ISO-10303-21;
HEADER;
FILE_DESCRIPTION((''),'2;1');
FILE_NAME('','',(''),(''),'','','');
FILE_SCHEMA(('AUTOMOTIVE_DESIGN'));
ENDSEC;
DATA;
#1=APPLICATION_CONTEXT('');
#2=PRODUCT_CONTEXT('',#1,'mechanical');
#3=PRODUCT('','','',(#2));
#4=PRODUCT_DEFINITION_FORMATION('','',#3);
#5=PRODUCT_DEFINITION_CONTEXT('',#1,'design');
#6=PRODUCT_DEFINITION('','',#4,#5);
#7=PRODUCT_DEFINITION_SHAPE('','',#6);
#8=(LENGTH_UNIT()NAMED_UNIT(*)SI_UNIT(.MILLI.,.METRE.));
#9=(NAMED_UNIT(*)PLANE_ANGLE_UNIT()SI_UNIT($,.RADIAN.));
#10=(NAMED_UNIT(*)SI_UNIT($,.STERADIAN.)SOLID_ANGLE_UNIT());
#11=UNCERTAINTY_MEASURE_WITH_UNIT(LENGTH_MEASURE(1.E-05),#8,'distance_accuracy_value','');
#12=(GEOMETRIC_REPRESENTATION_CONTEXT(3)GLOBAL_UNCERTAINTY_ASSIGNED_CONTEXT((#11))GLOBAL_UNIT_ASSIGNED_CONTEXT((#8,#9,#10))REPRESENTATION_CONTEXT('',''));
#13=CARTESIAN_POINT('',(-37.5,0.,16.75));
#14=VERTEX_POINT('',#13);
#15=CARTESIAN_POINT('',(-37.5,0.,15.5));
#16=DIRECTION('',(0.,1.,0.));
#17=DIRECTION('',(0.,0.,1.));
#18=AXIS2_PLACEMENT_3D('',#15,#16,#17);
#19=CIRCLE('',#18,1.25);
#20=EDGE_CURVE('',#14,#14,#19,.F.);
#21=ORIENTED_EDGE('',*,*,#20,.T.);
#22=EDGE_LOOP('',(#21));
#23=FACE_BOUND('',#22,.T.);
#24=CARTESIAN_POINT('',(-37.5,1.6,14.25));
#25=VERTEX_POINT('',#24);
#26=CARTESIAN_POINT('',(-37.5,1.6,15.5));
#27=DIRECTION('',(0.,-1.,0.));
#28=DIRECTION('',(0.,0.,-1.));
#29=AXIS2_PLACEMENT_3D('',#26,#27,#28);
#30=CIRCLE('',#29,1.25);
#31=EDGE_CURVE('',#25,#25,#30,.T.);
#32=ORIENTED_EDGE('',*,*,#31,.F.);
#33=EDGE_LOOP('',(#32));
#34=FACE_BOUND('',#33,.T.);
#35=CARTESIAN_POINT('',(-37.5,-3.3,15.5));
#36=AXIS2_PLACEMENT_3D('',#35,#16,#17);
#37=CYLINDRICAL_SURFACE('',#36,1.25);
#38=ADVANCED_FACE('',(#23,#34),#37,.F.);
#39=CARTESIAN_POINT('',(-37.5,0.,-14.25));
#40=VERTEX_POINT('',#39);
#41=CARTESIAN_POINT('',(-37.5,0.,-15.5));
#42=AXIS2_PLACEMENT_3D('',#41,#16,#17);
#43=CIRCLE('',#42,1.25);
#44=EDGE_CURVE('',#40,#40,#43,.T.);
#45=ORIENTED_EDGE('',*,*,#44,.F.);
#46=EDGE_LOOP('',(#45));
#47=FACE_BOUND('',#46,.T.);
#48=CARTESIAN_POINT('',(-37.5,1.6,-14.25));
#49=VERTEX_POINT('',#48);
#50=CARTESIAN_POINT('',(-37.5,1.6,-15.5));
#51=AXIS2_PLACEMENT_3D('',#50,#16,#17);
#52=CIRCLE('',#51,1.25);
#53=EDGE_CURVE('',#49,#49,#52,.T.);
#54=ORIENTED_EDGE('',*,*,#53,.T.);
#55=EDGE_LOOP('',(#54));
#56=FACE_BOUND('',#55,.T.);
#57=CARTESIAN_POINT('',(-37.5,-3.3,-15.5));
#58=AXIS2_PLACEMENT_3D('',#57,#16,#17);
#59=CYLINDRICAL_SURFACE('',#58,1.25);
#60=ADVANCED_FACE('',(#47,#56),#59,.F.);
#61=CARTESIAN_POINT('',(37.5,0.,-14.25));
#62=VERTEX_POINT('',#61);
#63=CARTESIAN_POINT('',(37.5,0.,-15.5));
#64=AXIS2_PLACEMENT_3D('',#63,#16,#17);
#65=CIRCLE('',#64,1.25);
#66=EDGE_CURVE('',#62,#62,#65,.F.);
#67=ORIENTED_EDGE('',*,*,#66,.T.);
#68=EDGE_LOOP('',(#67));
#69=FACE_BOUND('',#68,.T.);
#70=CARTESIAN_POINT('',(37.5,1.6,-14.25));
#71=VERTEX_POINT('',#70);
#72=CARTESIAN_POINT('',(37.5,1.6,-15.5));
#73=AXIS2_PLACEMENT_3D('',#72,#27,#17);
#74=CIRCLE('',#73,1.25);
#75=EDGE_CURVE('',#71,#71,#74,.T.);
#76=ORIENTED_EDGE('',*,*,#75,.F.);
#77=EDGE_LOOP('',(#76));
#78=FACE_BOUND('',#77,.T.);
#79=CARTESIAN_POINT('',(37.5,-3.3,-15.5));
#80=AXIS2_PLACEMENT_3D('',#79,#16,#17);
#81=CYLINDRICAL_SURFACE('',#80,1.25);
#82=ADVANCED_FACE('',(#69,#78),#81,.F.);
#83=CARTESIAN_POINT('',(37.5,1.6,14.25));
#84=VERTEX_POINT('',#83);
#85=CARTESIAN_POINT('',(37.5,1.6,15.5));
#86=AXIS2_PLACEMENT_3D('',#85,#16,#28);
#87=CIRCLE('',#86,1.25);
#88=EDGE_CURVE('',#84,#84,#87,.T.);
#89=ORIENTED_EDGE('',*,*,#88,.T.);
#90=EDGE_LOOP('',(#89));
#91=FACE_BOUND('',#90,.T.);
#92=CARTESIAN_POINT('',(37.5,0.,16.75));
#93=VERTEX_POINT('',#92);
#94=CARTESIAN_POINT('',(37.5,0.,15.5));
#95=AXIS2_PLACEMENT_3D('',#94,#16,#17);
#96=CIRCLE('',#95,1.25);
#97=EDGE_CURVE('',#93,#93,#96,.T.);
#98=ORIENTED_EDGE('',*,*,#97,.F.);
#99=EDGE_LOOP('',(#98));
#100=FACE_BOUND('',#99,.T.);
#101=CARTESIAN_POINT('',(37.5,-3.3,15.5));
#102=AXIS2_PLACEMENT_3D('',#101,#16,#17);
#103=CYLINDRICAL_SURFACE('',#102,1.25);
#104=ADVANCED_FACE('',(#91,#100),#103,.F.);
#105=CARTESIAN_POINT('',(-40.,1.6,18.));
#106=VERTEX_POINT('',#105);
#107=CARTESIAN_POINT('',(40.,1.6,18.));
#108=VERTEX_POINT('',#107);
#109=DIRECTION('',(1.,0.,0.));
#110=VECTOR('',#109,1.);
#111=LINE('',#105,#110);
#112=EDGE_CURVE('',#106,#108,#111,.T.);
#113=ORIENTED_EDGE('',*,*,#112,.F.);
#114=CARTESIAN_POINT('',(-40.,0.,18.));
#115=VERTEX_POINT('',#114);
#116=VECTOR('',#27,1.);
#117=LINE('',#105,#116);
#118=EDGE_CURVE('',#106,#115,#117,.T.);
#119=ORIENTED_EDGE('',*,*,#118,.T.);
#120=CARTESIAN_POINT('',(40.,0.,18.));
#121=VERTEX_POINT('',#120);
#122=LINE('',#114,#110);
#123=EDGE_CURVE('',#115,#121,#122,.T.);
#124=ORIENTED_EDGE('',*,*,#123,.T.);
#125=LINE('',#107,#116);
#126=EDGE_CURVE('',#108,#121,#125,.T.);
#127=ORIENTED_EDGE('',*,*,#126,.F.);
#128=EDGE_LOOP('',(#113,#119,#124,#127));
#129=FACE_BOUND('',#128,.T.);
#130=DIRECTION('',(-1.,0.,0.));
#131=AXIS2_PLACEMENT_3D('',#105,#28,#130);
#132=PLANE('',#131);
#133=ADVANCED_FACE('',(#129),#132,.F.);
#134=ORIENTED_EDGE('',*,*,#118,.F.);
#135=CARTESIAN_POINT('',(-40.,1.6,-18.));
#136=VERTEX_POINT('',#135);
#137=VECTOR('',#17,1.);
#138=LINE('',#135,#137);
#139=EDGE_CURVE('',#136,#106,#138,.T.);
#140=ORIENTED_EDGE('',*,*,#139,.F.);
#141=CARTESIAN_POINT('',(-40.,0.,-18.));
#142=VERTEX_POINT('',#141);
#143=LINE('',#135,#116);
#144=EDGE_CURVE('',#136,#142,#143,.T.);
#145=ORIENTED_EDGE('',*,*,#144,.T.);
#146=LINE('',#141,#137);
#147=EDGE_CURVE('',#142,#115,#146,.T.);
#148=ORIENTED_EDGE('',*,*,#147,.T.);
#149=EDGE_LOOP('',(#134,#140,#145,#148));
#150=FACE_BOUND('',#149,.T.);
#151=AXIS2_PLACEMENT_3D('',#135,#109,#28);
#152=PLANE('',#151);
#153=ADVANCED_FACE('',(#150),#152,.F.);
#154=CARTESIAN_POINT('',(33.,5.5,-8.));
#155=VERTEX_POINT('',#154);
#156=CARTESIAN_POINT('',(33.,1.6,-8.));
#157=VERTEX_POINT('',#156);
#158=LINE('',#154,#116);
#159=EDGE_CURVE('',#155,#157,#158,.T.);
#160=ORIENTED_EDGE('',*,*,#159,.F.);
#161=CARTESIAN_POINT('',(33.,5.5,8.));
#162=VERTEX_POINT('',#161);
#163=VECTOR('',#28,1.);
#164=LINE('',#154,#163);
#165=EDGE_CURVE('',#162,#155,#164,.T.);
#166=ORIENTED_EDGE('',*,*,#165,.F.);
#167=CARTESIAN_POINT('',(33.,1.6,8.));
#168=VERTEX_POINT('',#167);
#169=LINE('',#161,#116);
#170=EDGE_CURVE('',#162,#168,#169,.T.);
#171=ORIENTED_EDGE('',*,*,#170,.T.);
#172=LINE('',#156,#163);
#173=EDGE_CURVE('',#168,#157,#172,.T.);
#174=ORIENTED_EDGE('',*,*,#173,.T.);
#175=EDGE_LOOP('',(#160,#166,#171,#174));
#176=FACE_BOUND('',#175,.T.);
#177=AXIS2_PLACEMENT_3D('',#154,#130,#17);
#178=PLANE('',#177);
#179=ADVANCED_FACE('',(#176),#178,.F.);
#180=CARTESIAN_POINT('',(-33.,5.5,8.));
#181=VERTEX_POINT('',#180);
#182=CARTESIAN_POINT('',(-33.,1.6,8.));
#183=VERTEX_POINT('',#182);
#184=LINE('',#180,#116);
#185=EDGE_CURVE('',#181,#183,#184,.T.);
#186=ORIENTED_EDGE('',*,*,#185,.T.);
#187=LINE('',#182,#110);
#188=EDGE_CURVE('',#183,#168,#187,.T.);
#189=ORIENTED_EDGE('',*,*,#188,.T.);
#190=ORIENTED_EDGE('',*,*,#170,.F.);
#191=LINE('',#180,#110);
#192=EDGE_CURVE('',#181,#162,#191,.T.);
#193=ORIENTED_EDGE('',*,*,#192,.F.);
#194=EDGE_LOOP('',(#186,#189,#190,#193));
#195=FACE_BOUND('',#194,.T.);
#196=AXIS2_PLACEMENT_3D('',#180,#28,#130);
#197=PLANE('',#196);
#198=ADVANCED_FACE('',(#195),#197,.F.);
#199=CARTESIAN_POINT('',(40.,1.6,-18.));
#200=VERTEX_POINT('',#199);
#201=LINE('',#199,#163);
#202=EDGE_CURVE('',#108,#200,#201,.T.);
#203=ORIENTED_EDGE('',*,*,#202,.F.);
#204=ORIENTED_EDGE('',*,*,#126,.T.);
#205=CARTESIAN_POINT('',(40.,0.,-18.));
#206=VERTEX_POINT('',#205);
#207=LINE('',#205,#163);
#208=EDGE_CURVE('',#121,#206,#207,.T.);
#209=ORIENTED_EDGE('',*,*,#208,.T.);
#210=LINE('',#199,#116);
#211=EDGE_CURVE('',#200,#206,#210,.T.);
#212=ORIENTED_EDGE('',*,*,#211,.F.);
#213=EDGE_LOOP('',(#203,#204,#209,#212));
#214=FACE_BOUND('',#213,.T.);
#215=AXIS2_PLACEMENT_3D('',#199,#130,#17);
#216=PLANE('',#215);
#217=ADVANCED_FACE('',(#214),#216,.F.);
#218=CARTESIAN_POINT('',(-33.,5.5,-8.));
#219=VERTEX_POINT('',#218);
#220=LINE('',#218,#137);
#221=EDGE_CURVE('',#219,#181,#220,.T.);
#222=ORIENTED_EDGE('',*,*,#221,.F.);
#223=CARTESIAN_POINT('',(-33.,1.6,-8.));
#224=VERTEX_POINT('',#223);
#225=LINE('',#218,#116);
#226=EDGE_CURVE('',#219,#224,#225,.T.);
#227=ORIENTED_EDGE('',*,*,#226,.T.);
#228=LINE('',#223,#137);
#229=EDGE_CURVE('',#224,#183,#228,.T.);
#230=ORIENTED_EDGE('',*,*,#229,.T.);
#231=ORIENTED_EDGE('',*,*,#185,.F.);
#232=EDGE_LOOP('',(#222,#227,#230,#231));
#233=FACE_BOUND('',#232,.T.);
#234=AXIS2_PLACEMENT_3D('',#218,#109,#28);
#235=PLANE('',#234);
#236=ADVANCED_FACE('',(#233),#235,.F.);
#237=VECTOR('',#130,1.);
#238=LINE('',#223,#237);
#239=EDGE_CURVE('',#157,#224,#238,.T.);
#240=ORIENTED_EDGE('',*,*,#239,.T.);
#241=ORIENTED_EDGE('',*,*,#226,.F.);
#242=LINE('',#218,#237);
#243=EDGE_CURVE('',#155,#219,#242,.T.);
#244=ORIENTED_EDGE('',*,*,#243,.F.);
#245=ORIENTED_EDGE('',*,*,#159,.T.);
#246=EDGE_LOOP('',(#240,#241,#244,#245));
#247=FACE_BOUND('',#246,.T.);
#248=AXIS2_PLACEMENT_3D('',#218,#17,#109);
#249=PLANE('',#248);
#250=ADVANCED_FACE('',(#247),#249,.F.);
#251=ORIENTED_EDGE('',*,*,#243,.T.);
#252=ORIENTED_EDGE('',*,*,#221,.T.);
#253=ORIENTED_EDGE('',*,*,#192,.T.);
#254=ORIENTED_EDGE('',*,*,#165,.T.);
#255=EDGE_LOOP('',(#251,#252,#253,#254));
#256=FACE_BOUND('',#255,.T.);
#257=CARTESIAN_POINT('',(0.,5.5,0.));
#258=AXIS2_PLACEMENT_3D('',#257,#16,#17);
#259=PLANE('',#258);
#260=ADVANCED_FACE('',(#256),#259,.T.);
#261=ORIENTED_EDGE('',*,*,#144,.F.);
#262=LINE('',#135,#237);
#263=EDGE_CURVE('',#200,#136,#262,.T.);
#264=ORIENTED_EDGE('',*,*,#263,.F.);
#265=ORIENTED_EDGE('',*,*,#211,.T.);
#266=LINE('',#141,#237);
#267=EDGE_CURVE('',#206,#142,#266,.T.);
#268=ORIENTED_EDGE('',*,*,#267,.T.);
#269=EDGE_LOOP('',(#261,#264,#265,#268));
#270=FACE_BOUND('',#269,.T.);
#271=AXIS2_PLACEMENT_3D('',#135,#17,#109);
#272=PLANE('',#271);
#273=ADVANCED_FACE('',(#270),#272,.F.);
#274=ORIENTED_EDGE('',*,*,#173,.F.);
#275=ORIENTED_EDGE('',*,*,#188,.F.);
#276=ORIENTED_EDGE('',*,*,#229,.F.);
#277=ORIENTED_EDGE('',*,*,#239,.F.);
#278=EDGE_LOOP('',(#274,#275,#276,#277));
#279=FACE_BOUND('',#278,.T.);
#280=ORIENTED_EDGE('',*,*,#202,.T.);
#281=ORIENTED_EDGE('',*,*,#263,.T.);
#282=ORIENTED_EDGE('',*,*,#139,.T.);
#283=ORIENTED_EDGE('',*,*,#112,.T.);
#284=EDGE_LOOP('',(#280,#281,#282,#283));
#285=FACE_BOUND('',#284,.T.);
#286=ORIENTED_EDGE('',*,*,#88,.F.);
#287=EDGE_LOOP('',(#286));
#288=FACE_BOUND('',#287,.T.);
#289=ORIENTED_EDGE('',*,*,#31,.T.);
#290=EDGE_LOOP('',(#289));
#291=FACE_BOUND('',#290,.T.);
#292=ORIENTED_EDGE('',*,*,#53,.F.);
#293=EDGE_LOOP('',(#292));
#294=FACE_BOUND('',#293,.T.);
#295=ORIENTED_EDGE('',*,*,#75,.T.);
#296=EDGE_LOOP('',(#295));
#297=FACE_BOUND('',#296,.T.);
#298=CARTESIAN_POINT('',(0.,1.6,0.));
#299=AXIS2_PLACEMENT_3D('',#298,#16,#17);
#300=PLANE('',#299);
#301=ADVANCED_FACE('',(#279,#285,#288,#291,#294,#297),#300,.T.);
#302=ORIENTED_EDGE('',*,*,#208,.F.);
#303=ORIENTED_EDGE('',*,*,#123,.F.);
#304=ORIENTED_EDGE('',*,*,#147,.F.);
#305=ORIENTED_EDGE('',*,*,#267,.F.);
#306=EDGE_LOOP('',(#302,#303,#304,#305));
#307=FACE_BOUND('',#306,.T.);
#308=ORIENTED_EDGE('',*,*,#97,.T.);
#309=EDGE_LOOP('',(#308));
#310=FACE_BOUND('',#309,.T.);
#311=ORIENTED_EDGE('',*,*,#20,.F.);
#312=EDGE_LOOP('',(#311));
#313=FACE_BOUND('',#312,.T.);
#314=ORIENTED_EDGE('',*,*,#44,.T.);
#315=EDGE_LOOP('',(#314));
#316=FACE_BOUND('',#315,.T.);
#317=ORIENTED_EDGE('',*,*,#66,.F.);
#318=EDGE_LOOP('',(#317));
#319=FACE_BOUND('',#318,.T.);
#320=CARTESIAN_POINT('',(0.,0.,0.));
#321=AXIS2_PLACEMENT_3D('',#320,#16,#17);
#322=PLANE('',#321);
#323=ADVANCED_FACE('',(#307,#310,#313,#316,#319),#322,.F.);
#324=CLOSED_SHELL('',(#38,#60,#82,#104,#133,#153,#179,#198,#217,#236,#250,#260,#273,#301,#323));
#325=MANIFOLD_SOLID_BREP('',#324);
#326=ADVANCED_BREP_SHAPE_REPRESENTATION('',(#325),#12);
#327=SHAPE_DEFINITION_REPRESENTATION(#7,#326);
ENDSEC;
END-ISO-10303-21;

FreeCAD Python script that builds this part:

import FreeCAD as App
import Part
import Sketcher

V = App.Vector
Q = App.Units.Quantity


def add_polygon(sketch, points):
    """Adds a closed chain of lines whose ends are joined by coincident constraints."""
    first, n = sketch.GeometryCount, len(points)
    for a, b in zip(points, points[1:] + points[:1]):
        sketch.addGeometry(Part.LineSegment(App.Vector(*a, 0), App.Vector(*b, 0)), False)
    for i in range(n):
        sketch.addConstraint(Sketcher.Constraint("Coincident", first + i, 2, first + (i + 1) % n, 1))

doc = App.newDocument("Part")
body = doc.addObject("PartDesign::Body", "Body")

# Sketch on XZ plane
sketch1 = body.newObject("Sketcher::SketchObject", "Sketch")
sketch1.AttachmentSupport = (doc.getObject("XZ_Plane"), [""])
sketch1.MapMode = "FlatFace"
add_polygon(sketch1, [(-40, -18), (-40, 18), (40, 18), (40, -18)])  # lines 0-3
sketch1.addConstraint([
    Sketcher.Constraint("Vertical", 0),
    Sketcher.Constraint("Horizontal", 1),
    Sketcher.Constraint("Vertical", 2),
    Sketcher.Constraint("Horizontal", 3),
    Sketcher.Constraint("Symmetric", 0, 2, 2, 2, -1, 1),
    Sketcher.Constraint("DistanceX", 1, 1, 1, 2, Q("80 mm")),
    Sketcher.Constraint("DistanceY", 0, 1, 0, 2, Q("36 mm")),
])
pad1 = body.newObject("PartDesign::Pad", "Pad")
pad1.Profile = sketch1
pad1.Length = 1.6
pad1.Reversed = True

# Sketch on XZ plane
sketch2 = body.newObject("Sketcher::SketchObject", "Sketch001")
sketch2.AttachmentSupport = (doc.getObject("XZ_Plane"), [""])
sketch2.MapMode = "FlatFace"
sketch2.AttachmentOffset = App.Placement(V(0, 0, -1.6), App.Rotation())
add_polygon(sketch2, [(-33, -8), (-33, 8), (33, 8), (33, -8)])  # lines 0-3
sketch2.addConstraint([
    Sketcher.Constraint("Vertical", 0),
    Sketcher.Constraint("Horizontal", 1),
    Sketcher.Constraint("Vertical", 2),
    Sketcher.Constraint("Horizontal", 3),
    Sketcher.Constraint("Symmetric", 0, 2, 2, 2, -1, 1),
    Sketcher.Constraint("DistanceX", 1, 1, 1, 2, Q("66 mm")),
    Sketcher.Constraint("DistanceY", 0, 1, 0, 2, Q("16 mm")),
])
pad2 = body.newObject("PartDesign::Pad", "Pad001")
pad2.Profile = sketch2
pad2.Length = 3.9
pad2.Reversed = True

# Sketch on XZ plane
sketch3 = body.newObject("Sketcher::SketchObject", "Sketch002")
sketch3.AttachmentSupport = (doc.getObject("XZ_Plane"), [""])
sketch3.MapMode = "FlatFace"
sketch3.AttachmentOffset = App.Placement(V(0, 0, -1.6), App.Rotation())
sketch3.addGeometry(Part.Circle(V(-37.5, -15.5, 0), V(0, 0, 1), 1.2), False)
sketch3.addConstraint([
    Sketcher.Constraint("Diameter", 0, Q("2.5 mm")),
    Sketcher.Constraint("DistanceX", 0, 3, -1, 1, Q("37.5 mm")),
    Sketcher.Constraint("DistanceY", 0, 3, -1, 1, Q("15.5 mm")),
])
pocket1 = body.newObject("PartDesign::Pocket", "Pocket")
pocket1.Profile = sketch3
pocket1.Length = 4.9
pocket1.Reversed = True
doc.recompute()

mirrored = body.newObject("PartDesign::Mirrored", "Mirrored")
mirrored.Originals = [pocket1]
mirrored.MirrorPlane = (doc.getObject("YZ_Plane"), [""])
body.Tip = mirrored
doc.recompute()

mirrored2 = body.newObject("PartDesign::Mirrored", "Mirrored001")
mirrored2.Originals = [pocket1]
mirrored2.MirrorPlane = (doc.getObject("XY_Plane"), [""])
body.Tip = mirrored2

# Sketch on XZ plane
sketch4 = body.newObject("Sketcher::SketchObject", "Sketch003")
sketch4.AttachmentSupport = (doc.getObject("XZ_Plane"), [""])
sketch4.MapMode = "FlatFace"
sketch4.AttachmentOffset = App.Placement(V(0, 0, -1.6), App.Rotation())
sketch4.addGeometry(Part.Circle(V(37.5, 15.5, 0), V(0, 0, 1), 1.2), False)
sketch4.addConstraint([
    Sketcher.Constraint("Diameter", 0, Q("2.5 mm")),
    Sketcher.Constraint("DistanceX", -1, 1, 0, 3, Q("37.5 mm")),
    Sketcher.Constraint("DistanceY", -1, 1, 0, 3, Q("15.5 mm")),
])
pocket2 = body.newObject("PartDesign::Pocket", "Pocket001")
pocket2.Profile = sketch4
pocket2.Length = 4.9
pocket2.Reversed = True

doc.recompute()
